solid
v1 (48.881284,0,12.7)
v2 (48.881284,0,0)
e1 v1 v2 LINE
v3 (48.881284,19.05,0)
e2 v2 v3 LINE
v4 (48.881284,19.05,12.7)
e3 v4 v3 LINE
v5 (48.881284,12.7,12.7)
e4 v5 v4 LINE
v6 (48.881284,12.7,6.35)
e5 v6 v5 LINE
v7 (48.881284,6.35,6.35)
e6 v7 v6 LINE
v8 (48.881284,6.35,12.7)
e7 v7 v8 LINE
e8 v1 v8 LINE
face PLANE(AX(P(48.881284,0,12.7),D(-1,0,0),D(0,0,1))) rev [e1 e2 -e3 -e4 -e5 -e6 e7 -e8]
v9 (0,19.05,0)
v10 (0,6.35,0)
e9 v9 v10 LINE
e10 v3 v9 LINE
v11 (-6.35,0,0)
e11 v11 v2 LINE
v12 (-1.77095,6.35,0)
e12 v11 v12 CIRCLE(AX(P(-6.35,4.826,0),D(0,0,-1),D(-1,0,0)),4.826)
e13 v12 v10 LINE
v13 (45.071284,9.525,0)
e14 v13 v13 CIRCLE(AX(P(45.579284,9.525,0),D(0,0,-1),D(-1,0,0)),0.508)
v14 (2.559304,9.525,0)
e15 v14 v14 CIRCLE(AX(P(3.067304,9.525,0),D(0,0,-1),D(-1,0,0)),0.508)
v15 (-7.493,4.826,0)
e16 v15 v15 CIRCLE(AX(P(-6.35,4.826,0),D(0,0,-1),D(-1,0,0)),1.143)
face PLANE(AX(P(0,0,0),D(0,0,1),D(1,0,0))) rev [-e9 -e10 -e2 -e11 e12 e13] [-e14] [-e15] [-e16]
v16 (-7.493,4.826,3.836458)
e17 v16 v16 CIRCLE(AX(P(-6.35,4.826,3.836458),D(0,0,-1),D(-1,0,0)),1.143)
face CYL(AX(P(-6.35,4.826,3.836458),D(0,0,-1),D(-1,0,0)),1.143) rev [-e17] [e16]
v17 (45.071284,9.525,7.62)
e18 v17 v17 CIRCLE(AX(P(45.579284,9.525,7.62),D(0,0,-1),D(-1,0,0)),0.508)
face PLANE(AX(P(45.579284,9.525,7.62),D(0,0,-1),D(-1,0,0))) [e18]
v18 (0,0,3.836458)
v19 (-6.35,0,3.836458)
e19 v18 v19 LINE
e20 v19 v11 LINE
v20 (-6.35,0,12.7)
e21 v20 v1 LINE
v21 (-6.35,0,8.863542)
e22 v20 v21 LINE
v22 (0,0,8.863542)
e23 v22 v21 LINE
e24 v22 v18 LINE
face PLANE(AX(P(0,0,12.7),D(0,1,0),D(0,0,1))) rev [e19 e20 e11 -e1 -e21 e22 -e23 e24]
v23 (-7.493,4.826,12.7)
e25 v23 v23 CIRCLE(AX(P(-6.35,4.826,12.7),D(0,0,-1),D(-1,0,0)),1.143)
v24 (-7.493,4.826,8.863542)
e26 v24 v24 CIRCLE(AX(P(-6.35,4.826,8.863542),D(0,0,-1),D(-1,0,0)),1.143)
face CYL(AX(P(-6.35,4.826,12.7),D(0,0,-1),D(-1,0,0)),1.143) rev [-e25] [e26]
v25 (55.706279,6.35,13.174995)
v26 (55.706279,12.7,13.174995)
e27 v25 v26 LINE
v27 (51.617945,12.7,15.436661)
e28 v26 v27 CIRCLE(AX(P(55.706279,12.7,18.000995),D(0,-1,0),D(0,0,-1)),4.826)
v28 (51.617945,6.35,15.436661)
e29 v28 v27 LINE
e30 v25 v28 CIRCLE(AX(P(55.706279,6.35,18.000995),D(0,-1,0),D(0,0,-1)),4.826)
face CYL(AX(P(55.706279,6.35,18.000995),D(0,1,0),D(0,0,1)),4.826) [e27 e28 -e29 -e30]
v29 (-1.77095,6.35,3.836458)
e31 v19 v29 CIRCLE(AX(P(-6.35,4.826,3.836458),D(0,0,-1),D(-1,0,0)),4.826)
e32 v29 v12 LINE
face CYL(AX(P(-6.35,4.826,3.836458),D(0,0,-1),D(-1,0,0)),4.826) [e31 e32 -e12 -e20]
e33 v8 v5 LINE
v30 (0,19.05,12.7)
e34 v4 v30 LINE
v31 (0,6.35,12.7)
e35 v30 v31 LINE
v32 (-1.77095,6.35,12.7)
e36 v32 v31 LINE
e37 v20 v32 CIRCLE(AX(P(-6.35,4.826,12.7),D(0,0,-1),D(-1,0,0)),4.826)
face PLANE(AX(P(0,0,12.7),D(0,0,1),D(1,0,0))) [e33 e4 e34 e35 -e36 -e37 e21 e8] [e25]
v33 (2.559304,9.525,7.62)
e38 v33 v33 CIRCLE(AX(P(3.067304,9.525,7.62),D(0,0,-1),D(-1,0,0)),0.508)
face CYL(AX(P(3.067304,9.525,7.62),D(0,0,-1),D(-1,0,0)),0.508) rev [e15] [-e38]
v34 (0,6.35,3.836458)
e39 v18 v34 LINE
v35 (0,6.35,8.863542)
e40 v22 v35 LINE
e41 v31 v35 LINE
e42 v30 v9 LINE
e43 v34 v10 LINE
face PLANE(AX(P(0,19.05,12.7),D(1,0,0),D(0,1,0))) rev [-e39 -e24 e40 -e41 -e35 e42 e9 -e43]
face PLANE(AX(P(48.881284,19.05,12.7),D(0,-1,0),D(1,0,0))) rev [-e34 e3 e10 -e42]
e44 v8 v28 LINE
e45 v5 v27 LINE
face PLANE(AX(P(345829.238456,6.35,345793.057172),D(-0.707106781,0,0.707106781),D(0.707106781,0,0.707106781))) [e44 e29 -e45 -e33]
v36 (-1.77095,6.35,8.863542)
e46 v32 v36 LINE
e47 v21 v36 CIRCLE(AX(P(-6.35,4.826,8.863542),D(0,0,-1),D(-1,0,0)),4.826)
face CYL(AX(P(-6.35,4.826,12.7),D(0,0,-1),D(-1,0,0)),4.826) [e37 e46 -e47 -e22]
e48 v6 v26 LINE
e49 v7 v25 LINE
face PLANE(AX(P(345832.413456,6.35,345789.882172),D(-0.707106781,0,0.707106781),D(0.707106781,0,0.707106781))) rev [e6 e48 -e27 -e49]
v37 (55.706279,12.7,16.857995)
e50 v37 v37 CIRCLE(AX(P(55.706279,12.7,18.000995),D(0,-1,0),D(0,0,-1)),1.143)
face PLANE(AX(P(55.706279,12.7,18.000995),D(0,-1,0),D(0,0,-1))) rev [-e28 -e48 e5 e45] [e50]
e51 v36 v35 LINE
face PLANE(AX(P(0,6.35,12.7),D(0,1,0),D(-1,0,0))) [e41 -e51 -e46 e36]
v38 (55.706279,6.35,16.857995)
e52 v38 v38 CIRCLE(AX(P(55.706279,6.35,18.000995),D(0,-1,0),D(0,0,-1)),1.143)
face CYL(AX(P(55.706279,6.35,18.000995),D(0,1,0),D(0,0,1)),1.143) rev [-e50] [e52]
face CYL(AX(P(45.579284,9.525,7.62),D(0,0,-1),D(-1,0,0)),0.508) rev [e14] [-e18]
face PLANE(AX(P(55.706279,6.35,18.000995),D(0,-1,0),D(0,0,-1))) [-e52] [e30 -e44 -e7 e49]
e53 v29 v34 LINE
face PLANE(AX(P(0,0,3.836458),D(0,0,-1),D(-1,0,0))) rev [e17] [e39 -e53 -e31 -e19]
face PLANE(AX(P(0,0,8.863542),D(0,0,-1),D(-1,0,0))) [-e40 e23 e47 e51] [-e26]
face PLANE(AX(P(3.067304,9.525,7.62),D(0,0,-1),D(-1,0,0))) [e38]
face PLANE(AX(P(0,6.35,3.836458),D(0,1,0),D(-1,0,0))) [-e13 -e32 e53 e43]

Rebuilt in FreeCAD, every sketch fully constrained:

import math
import FreeCAD as App
import Part
import Sketcher

V = App.Vector
Q = App.Units.Quantity

doc = App.newDocument("Part")
body = doc.addObject("PartDesign::Body", "Body")

# Sketch on XY plane
sketch1 = doc.addObject("Sketcher::SketchObject", "Sketch")
body.addObject(sketch1)
sketch1.AttachmentSupport = (doc.XY_Plane, [""])
sketch1.MapMode = "FlatFace"
sketch1.addGeometry(Part.LineSegment(V(0, 19.05, 0), V(0, 0, 0)), False)
sketch1.addGeometry(Part.LineSegment(V(0, 0, 0), V(48.881284, 0, 0)), False)
sketch1.addGeometry(Part.LineSegment(V(48.881284, 0, 0), V(48.881284, 19.05, 0)), False)
sketch1.addGeometry(Part.LineSegment(V(48.881284, 19.05, 0), V(0, 19.05, 0)), False)
sketch1.addConstraint(Sketcher.Constraint("Coincident", 0, 2, 1, 1))
sketch1.addConstraint(Sketcher.Constraint("Coincident", 1, 2, 2, 1))
sketch1.addConstraint(Sketcher.Constraint("Coincident", 2, 2, 3, 1))
sketch1.addConstraint(Sketcher.Constraint("Coincident", 3, 2, 0, 1))
sketch1.addConstraint(Sketcher.Constraint("Vertical", 0))
sketch1.addConstraint(Sketcher.Constraint("Horizontal", 1))
sketch1.addConstraint(Sketcher.Constraint("Vertical", 2))
sketch1.addConstraint(Sketcher.Constraint("Horizontal", 3))
sketch1.addConstraint(Sketcher.Constraint("Coincident", 0, 2, -1, 1))
sketch1.addConstraint(Sketcher.Constraint("DistanceY", 0, 2, 0, 1, Q("0.75 in")))
sketch1.addConstraint(Sketcher.Constraint("DistanceX", 1, 1, 1, 2, Q("48.881284 mm")))
pad1 = doc.addObject("PartDesign::Pad", "Pad")
body.addObject(pad1)
pad1.Profile = sketch1
pad1.Length = Q("0.5 in")

# Sketch on XY plane
sketch2 = doc.addObject("Sketcher::SketchObject", "Sketch001")
body.addObject(sketch2)
sketch2.AttachmentSupport = (doc.XY_Plane, [""])
sketch2.MapMode = "FlatFace"
sketch2.addGeometry(Part.ArcOfCircle(Part.Circle(V(-6.35, 4.826, 0), V(0, 0, 1), 4.826), math.radians(180), math.radians(270)), False)
sketch2.addGeometry(Part.ArcOfCircle(Part.Circle(V(-6.35, 4.826, 0), V(0, 0, 1), 4.826), math.radians(18.40848), math.radians(180)), False)
sketch2.addGeometry(Part.LineSegment(V(-1.77095, 6.35, 0), V(0, 6.35, 0)), False)
sketch2.addGeometry(Part.LineSegment(V(0, 6.35, 0), V(0, 0, 0)), False)
sketch2.addGeometry(Part.LineSegment(V(0, 0, 0), V(-6.35, 0, 0)), False)
sketch2.addGeometry(Part.ArcOfCircle(Part.Circle(V(-6.35, 4.826, 0), V(0, 0, 1), 1.143), math.radians(-90), math.radians(90)), False)
sketch2.addGeometry(Part.ArcOfCircle(Part.Circle(V(-6.35, 4.826, 0), V(0, 0, 1), 1.143), math.radians(90), math.radians(180)), False)
sketch2.addGeometry(Part.ArcOfCircle(Part.Circle(V(-6.35, 4.826, 0), V(0, 0, 1), 1.143), math.radians(180), math.radians(270)), False)
sketch2.addConstraint(Sketcher.Constraint("Tangent", 0, 1, 1, 2))
sketch2.addConstraint(Sketcher.Constraint("Coincident", 1, 1, 2, 1))
sketch2.addConstraint(Sketcher.Constraint("Coincident", 2, 2, 3, 1))
sketch2.addConstraint(Sketcher.Constraint("Coincident", 3, 2, 4, 1))
sketch2.addConstraint(Sketcher.Constraint("Tangent", 4, 2, 0, 2))
sketch2.addConstraint(Sketcher.Constraint("Tangent", 5, 2, 6, 1))
sketch2.addConstraint(Sketcher.Constraint("Tangent", 6, 2, 7, 1))
sketch2.addConstraint(Sketcher.Constraint("Tangent", 7, 2, 5, 1))
sketch2.addConstraint(Sketcher.Constraint("Horizontal", 2))
sketch2.addConstraint(Sketcher.Constraint("Vertical", 3))
sketch2.addConstraint(Sketcher.Constraint("Horizontal", 4))
sketch2.addConstraint(Sketcher.Constraint("Coincident", 3, 2, -1, 1))
sketch2.addConstraint(Sketcher.Constraint("Coincident", 5, 3, 0, 3))
sketch2.addConstraint(Sketcher.Constraint("Equal", 0, 1))
sketch2.addConstraint(Sketcher.Constraint("Horizontal", 7, 3, 0, 1))
sketch2.addConstraint(Sketcher.Constraint("Horizontal", 0, 1, 6, 2))
sketch2.addConstraint(Sketcher.Constraint("Vertical", 4, 2, 5, 2))
sketch2.addConstraint(Sketcher.Constraint("Vertical", 5, 2, 7, 2))
sketch2.addConstraint(Sketcher.Constraint("Equal", 4, 3))
sketch2.addConstraint(Sketcher.Constraint("Radius", 0, Q("0.19 in")))
sketch2.addConstraint(Sketcher.Constraint("Radius", 5, Q("0.045 in")))
sketch2.addConstraint(Sketcher.Constraint("DistanceX", 4, 2, 4, 1, Q("0.25 in")))
pad2 = doc.addObject("PartDesign::Pad", "Pad001")
body.addObject(pad2)
pad2.Profile = sketch2
pad2.Length = 3.836458
doc.recompute()

linearpattern = doc.addObject("PartDesign::LinearPattern", "LinearPattern")
body.addObject(linearpattern)
linearpattern.Originals = [pad2]
linearpattern.Direction = (doc.Z_Axis, [""])
linearpattern.Mode = "offset"
linearpattern.Offset = 8.863542
linearpattern.Occurrences = 2
body.Tip = linearpattern

# Sketch on XZ plane
sketch3 = doc.addObject("Sketcher::SketchObject", "Sketch002")
body.addObject(sketch3)
sketch3.AttachmentSupport = (doc.XZ_Plane, [""])
sketch3.MapMode = "FlatFace"
sketch3.AttachmentOffset = App.Placement(V(0, 0, -0.375 * 25.4), App.Rotation())
sketch3.addGeometry(Part.LineSegment(V(51.617945, 15.436661, 0), V(48.881284, 12.7, 0)), False)
sketch3.addGeometry(Part.LineSegment(V(48.881284, 12.7, 0), V(48.881284, 6.35, 0)), False)
sketch3.addGeometry(Part.LineSegment(V(48.881284, 6.35, 0), V(55.706279, 13.174995, 0)), False)
sketch3.addGeometry(Part.ArcOfCircle(Part.Circle(V(55.706279, 18.000995, 0), V(0, 0, 1), 4.826), math.radians(-90), math.radians(212.097251)), False)
sketch3.addGeometry(Part.Circle(V(55.706279, 18.000995, 0), V(0, 0, 1), 1.143), False)
sketch3.addConstraint(Sketcher.Constraint("Coincident", 0, 2, 1, 1))
sketch3.addConstraint(Sketcher.Constraint("Coincident", 1, 2, 2, 1))
sketch3.addConstraint(Sketcher.Constraint("Coincident", 2, 2, 3, 1))
sketch3.addConstraint(Sketcher.Constraint("Coincident", 3, 2, 0, 1))
sketch3.addConstraint(Sketcher.Constraint("Vertical", 1))
sketch3.addConstraint(Sketcher.Constraint("Coincident", 4, 3, 3, 3))
sketch3.addConstraint(Sketcher.Constraint("Parallel", 0, 2))
sketch3.addConstraint(Sketcher.Constraint("Vertical", 4, 3, 2, 2))
sketch3.addConstraint(Sketcher.Constraint("Diameter", 4, Q("0.09 in")))
sketch3.addConstraint(Sketcher.Constraint("Radius", 3, Q("0.19 in")))
sketch3.addConstraint(Sketcher.Constraint("Angle", 0, Q("-135 deg")))
sketch3.addConstraint(Sketcher.Constraint("DistanceY", 1, 2, 1, 1, Q("0.25 in")))
sketch3.addConstraint(Sketcher.Constraint("DistanceY", -1, 1, 0, 2, Q("0.5 in")))
sketch3.addConstraint(Sketcher.Constraint("Distance", 2, Q("0.38 in")))
sketch3.addConstraint(Sketcher.Constraint("DistanceX", -1, 1, 3, 3, Q("55.706279 mm")))
pad3 = doc.addObject("PartDesign::Pad", "Pad002")
body.addObject(pad3)
pad3.Profile = sketch3
pad3.Length = Q("0.25 in")
pad3.Midplane = True

# Sketch on XY plane
sketch4 = doc.addObject("Sketcher::SketchObject", "Sketch003")
body.addObject(sketch4)
sketch4.AttachmentSupport = (doc.XY_Plane, [""])
sketch4.MapMode = "FlatFace"
sketch4.addGeometry(Part.Circle(V(45.579284, 9.525, 0), V(0, 0, 1), 0.508), False)
sketch4.addGeometry(Part.Circle(V(3.067304, 9.525, 0), V(0, 0, 1), 0.508), False)
sketch4.addConstraint(Sketcher.Constraint("Equal", 0, 1))
sketch4.addConstraint(Sketcher.Constraint("Horizontal", 0, 3, 1, 3))
sketch4.addConstraint(Sketcher.Constraint("Diameter", 0, Q("0.04 in")))
sketch4.addConstraint(Sketcher.Constraint("DistanceY", -1, 1, 0, 3, Q("0.375 in")))
sketch4.addConstraint(Sketcher.Constraint("DistanceX", 1, 3, 0, 3, Q("1.6737 in")))
sketch4.addConstraint(Sketcher.Constraint("DistanceX", -1, 1, 0, 3, Q("45.579284 mm")))
pocket1 = doc.addObject("PartDesign::Pocket", "Pocket")
body.addObject(pocket1)
pocket1.Profile = sketch4
pocket1.Length = Q("0.3 in")
pocket1.Reversed = True

doc.recompute()
